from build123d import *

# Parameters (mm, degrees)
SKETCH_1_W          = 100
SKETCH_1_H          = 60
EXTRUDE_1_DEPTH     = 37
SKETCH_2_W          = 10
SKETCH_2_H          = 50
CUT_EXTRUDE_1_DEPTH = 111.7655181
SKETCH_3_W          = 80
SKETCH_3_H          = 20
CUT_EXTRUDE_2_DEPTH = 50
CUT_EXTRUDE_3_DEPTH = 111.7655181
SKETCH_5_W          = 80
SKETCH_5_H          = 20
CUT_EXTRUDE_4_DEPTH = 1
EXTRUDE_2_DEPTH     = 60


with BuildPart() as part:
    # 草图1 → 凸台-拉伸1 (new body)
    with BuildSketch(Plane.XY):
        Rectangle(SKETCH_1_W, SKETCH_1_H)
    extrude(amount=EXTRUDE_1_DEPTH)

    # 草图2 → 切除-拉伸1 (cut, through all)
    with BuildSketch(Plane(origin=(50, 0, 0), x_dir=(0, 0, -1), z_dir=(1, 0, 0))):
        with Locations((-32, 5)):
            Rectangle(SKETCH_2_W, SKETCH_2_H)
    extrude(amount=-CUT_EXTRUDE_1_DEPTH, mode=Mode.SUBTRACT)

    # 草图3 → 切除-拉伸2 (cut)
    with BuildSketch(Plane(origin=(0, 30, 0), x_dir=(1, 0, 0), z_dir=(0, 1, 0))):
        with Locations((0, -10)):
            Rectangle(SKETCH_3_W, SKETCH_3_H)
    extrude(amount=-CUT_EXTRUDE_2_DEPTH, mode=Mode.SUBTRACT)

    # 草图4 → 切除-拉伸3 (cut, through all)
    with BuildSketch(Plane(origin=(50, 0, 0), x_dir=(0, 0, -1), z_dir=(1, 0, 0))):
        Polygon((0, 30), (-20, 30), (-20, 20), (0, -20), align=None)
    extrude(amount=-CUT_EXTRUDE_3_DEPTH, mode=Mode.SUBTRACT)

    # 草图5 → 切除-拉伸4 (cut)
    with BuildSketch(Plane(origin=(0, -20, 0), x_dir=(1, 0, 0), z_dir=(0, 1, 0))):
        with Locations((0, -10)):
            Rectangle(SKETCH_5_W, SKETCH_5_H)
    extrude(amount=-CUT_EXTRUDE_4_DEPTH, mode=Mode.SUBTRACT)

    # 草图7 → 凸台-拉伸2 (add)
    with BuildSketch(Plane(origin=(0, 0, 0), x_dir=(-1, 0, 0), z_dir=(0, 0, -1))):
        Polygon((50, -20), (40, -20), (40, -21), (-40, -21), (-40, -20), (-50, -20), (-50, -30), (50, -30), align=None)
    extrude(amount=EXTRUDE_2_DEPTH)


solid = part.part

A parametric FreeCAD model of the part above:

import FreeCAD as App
import Part
import Sketcher

doc = App.newDocument("Part")
params = doc.addObject("Spreadsheet::Sheet", "Params")
for row, (alias, value) in enumerate([
    ("sketch1_width", "100 mm"),
    ("sketch1_height", "60 mm"),
    ("pad1_length", "37 mm"),
    ("sketch2_width", "50 mm"),
    ("sketch2_height", "10 mm"),
    ("sketch3_width", "80 mm"),
    ("sketch3_height", "20 mm"),
    ("pocket2_length", "50 mm"),
    ("sketch4_width", "10 mm"),
    ("sketch4_width2", "50 mm"),
    ("sketch4_height", "20 mm"),
    ("sketch5_width", "80 mm"),
    ("sketch5_height", "20 mm"),
    ("pocket4_length", "1 mm"),
    ("sketch6_width", "10 mm"),
    ("sketch6_width2", "80 mm"),
    ("sketch6_height", "1 mm"),
    ("pad2_length", "60 mm"),
], start=1):
    params.set(f"A{row}", alias)
    params.set(f"B{row}", "=" + value)
    params.setAlias(f"B{row}", alias)

body = doc.addObject("PartDesign::Body", "Body")

# Sketch on XY plane
sketch1 = body.newObject("Sketcher::SketchObject", "Sketch")
sketch1.AttachmentSupport = (doc.getObject("XY_Plane"), [""])
sketch1.MapMode = "FlatFace"
sketch1.addGeometry(Part.LineSegment(App.Vector(-50, 30, 0), App.Vector(-50, -30, 0)), False)
sketch1.addGeometry(Part.LineSegment(App.Vector(-50, -30, 0), App.Vector(50, -30, 0)), False)
sketch1.addGeometry(Part.LineSegment(App.Vector(50, -30, 0), App.Vector(50, 30, 0)), False)
sketch1.addGeometry(Part.LineSegment(App.Vector(50, 30, 0), App.Vector(-50, 30, 0)), False)
sketch1.addConstraint(Sketcher.Constraint("Coincident", 0, 2, 1, 1))
sketch1.addConstraint(Sketcher.Constraint("Coincident", 1, 2, 2, 1))
sketch1.addConstraint(Sketcher.Constraint("Coincident", 2, 2, 3, 1))
sketch1.addConstraint(Sketcher.Constraint("Coincident", 3, 2, 0, 1))
sketch1.addConstraint(Sketcher.Constraint("Vertical", 0))
sketch1.addConstraint(Sketcher.Constraint("Horizontal", 1))
sketch1.addConstraint(Sketcher.Constraint("Vertical", 2))
sketch1.addConstraint(Sketcher.Constraint("Horizontal", 3))
sketch1.addConstraint(Sketcher.Constraint("Symmetric", 0, 2, 2, 2, -1, 1))
sketch1.addConstraint(Sketcher.Constraint("DistanceX", 1, 1, 1, 2, 100.0))
sketch1.addConstraint(Sketcher.Constraint("DistanceY", 0, 2, 0, 1, 60.0))
sketch1.setExpression("Constraints[9]", "Params.sketch1_width")
sketch1.setExpression("Constraints[10]", "Params.sketch1_height")
pad1 = body.newObject("PartDesign::Pad", "Pad")
pad1.Profile = sketch1
pad1.setExpression("Length", "Params.pad1_length")

# Sketch on YZ plane
sketch2 = body.newObject("Sketcher::SketchObject", "Sketch001")
sketch2.AttachmentSupport = (doc.getObject("YZ_Plane"), [""])
sketch2.MapMode = "FlatFace"
sketch2.AttachmentOffset = App.Placement(App.Vector(0, 0, 50), App.Rotation())
sketch2.addGeometry(Part.LineSegment(App.Vector(30, 37, 0), App.Vector(-20, 37, 0)), False)
sketch2.addGeometry(Part.LineSegment(App.Vector(-20, 37, 0), App.Vector(-20, 27, 0)), False)
sketch2.addGeometry(Part.LineSegment(App.Vector(-20, 27, 0), App.Vector(30, 27, 0)), False)
sketch2.addGeometry(Part.LineSegment(App.Vector(30, 27, 0), App.Vector(30, 37, 0)), False)
sketch2.addConstraint(Sketcher.Constraint("Coincident", 0, 2, 1, 1))
sketch2.addConstraint(Sketcher.Constraint("Coincident", 1, 2, 2, 1))
sketch2.addConstraint(Sketcher.Constraint("Coincident", 2, 2, 3, 1))
sketch2.addConstraint(Sketcher.Constraint("Coincident", 3, 2, 0, 1))
sketch2.addConstraint(Sketcher.Constraint("Horizontal", 0))
sketch2.addConstraint(Sketcher.Constraint("Vertical", 1))
sketch2.addConstraint(Sketcher.Constraint("Horizontal", 2))
sketch2.addConstraint(Sketcher.Constraint("Vertical", 3))
sketch2.addConstraint(Sketcher.Constraint("DistanceX", 0, 2, 0, 1, 50.0))
sketch2.addConstraint(Sketcher.Constraint("DistanceY", 1, 2, 1, 1, 10.0))
sketch2.addConstraint(Sketcher.Constraint("DistanceX", 0, 2, -1, 1, 20.0))
sketch2.addConstraint(Sketcher.Constraint("DistanceY", -1, 1, 0, 2, 37.0))
sketch2.setExpression("Constraints[8]", "Params.sketch2_width")
sketch2.setExpression("Constraints[9]", "Params.sketch2_height")
pocket1 = body.newObject("PartDesign::Pocket", "Pocket")
pocket1.Profile = sketch2
pocket1.Type = "ThroughAll"

# Sketch on XZ plane
sketch3 = body.newObject("Sketcher::SketchObject", "Sketch002")
sketch3.AttachmentSupport = (doc.getObject("XZ_Plane"), [""])
sketch3.MapMode = "FlatFace"
sketch3.AttachmentOffset = App.Placement(App.Vector(0, 0, -30), App.Rotation())
sketch3.addGeometry(Part.LineSegment(App.Vector(-40, 0, 0), App.Vector(-40, 20, 0)), False)
sketch3.addGeometry(Part.LineSegment(App.Vector(-40, 20, 0), App.Vector(40, 20, 0)), False)
sketch3.addGeometry(Part.LineSegment(App.Vector(40, 20, 0), App.Vector(40, 0, 0)), False)
sketch3.addGeometry(Part.LineSegment(App.Vector(40, 0, 0), App.Vector(-40, 0, 0)), False)
sketch3.addConstraint(Sketcher.Constraint("Coincident", 0, 2, 1, 1))
sketch3.addConstraint(Sketcher.Constraint("Coincident", 1, 2, 2, 1))
sketch3.addConstraint(Sketcher.Constraint("Coincident", 2, 2, 3, 1))
sketch3.addConstraint(Sketcher.Constraint("Coincident", 3, 2, 0, 1))
sketch3.addConstraint(Sketcher.Constraint("Vertical", 0))
sketch3.addConstraint(Sketcher.Constraint("Horizontal", 1))
sketch3.addConstraint(Sketcher.Constraint("Vertical", 2))
sketch3.addConstraint(Sketcher.Constraint("Horizontal", 3))
sketch3.addConstraint(Sketcher.Constraint("Symmetric", 2, 2, 3, 2, -1, 1))
sketch3.addConstraint(Sketcher.Constraint("DistanceX", 1, 1, 1, 2, 80.0))
sketch3.addConstraint(Sketcher.Constraint("DistanceY", 0, 1, 0, 2, 20.0))
sketch3.setExpression("Constraints[9]", "Params.sketch3_width")
sketch3.setExpression("Constraints[10]", "Params.sketch3_height")
pocket2 = body.newObject("PartDesign::Pocket", "Pocket001")
pocket2.Profile = sketch3
pocket2.setExpression("Length", "Params.pocket2_length")
pocket2.Reversed = True

# Sketch on YZ plane
sketch4 = body.newObject("Sketcher::SketchObject", "Sketch003")
sketch4.AttachmentSupport = (doc.getObject("YZ_Plane"), [""])
sketch4.MapMode = "FlatFace"
sketch4.AttachmentOffset = App.Placement(App.Vector(0, 0, 50), App.Rotation())
sketch4.addGeometry(Part.LineSegment(App.Vector(30, 0, 0), App.Vector(30, 20, 0)), False)
sketch4.addGeometry(Part.LineSegment(App.Vector(30, 20, 0), App.Vector(20, 20, 0)), False)
sketch4.addGeometry(Part.LineSegment(App.Vector(20, 20, 0), App.Vector(-20, 0, 0)), False)
sketch4.addGeometry(Part.LineSegment(App.Vector(-20, 0, 0), App.Vector(30, 0, 0)), False)
sketch4.addConstraint(Sketcher.Constraint("Coincident", 0, 2, 1, 1))
sketch4.addConstraint(Sketcher.Constraint("Coincident", 1, 2, 2, 1))
sketch4.addConstraint(Sketcher.Constraint("Coincident", 2, 2, 3, 1))
sketch4.addConstraint(Sketcher.Constraint("Coincident", 3, 2, 0, 1))
sketch4.addConstraint(Sketcher.Constraint("Vertical", 0))
sketch4.addConstraint(Sketcher.Constraint("Horizontal", 1))
sketch4.addConstraint(Sketcher.Constraint("Horizontal", 3))
sketch4.addConstraint(Sketcher.Constraint("PointOnObject", 2, 2, -1))
sketch4.addConstraint(Sketcher.Constraint("DistanceX", 1, 2, 1, 1, 10.0))
sketch4.addConstraint(Sketcher.Constraint("DistanceX", 3, 1, 3, 2, 50.0))
sketch4.addConstraint(Sketcher.Constraint("DistanceY", 0, 1, 0, 2, 20.0))
sketch4.addConstraint(Sketcher.Constraint("DistanceX", -1, 1, 0, 2, 30.0))
sketch4.setExpression("Constraints[8]", "Params.sketch4_width")
sketch4.setExpression("Constraints[9]", "Params.sketch4_width2")
sketch4.setExpression("Constraints[10]", "Params.sketch4_height")
pocket3 = body.newObject("PartDesign::Pocket", "Pocket002")
pocket3.Profile = sketch4
pocket3.Type = "ThroughAll"

# Sketch on XZ plane
sketch5 = body.newObject("Sketcher::SketchObject", "Sketch004")
sketch5.AttachmentSupport = (doc.getObject("XZ_Plane"), [""])
sketch5.MapMode = "FlatFace"
sketch5.AttachmentOffset = App.Placement(App.Vector(0, 0, 20), App.Rotation())
sketch5.addGeometry(Part.LineSegment(App.Vector(-40, 0, 0), App.Vector(-40, 20, 0)), False)
sketch5.addGeometry(Part.LineSegment(App.Vector(-40, 20, 0), App.Vector(40, 20, 0)), False)
sketch5.addGeometry(Part.LineSegment(App.Vector(40, 20, 0), App.Vector(40, 0, 0)), False)
sketch5.addGeometry(Part.LineSegment(App.Vector(40, 0, 0), App.Vector(-40, 0, 0)), False)
sketch5.addConstraint(Sketcher.Constraint("Coincident", 0, 2, 1, 1))
sketch5.addConstraint(Sketcher.Constraint("Coincident", 1, 2, 2, 1))
sketch5.addConstraint(Sketcher.Constraint("Coincident", 2, 2, 3, 1))
sketch5.addConstraint(Sketcher.Constraint("Coincident", 3, 2, 0, 1))
sketch5.addConstraint(Sketcher.Constraint("Vertical", 0))
sketch5.addConstraint(Sketcher.Constraint("Horizontal", 1))
sketch5.addConstraint(Sketcher.Constraint("Vertical", 2))
sketch5.addConstraint(Sketcher.Constraint("Horizontal", 3))
sketch5.addConstraint(Sketcher.Constraint("Symmetric", 2, 2, 3, 2, -1, 1))
sketch5.addConstraint(Sketcher.Constraint("DistanceX", 1, 1, 1, 2, 80.0))
sketch5.addConstraint(Sketcher.Constraint("DistanceY", 0, 1, 0, 2, 20.0))
sketch5.setExpression("Constraints[9]", "Params.sketch5_width")
sketch5.setExpression("Constraints[10]", "Params.sketch5_height")
pocket4 = body.newObject("PartDesign::Pocket", "Pocket003")
pocket4.Profile = sketch5
pocket4.setExpression("Length", "Params.pocket4_length")
pocket4.Reversed = True

# Sketch on XY plane
sketch6 = body.newObject("Sketcher::SketchObject", "Sketch005")
sketch6.AttachmentSupport = (doc.getObject("XY_Plane"), [""])
sketch6.MapMode = "FlatFace"
sketch6.addGeometry(Part.LineSegment(App.Vector(-50, -20, 0), App.Vector(-40, -20, 0)), False)
sketch6.addGeometry(Part.LineSegment(App.Vector(-40, -20, 0), App.Vector(-40, -21, 0)), False)
sketch6.addGeometry(Part.LineSegment(App.Vector(-40, -21, 0), App.Vector(40, -21, 0)), False)
sketch6.addGeometry(Part.LineSegment(App.Vector(40, -21, 0), App.Vector(40, -20, 0)), False)
sketch6.addGeometry(Part.LineSegment(App.Vector(40, -20, 0), App.Vector(50, -20, 0)), False)
sketch6.addGeometry(Part.LineSegment(App.Vector(50, -20, 0), App.Vector(50, -30, 0)), False)
sketch6.addGeometry(Part.LineSegment(App.Vector(50, -30, 0), App.Vector(-50, -30, 0)), False)
sketch6.addGeometry(Part.LineSegment(App.Vector(-50, -30, 0), App.Vector(-50, -20, 0)), False)
sketch6.addConstraint(Sketcher.Constraint("Coincident", 0, 2, 1, 1))
sketch6.addConstraint(Sketcher.Constraint("Coincident", 1, 2, 2, 1))
sketch6.addConstraint(Sketcher.Constraint("Coincident", 2, 2, 3, 1))
sketch6.addConstraint(Sketcher.Constraint("Coincident", 3, 2, 4, 1))
sketch6.addConstraint(Sketcher.Constraint("Coincident", 4, 2, 5, 1))
sketch6.addConstraint(Sketcher.Constraint("Coincident", 5, 2, 6, 1))
sketch6.addConstraint(Sketcher.Constraint("Coincident", 6, 2, 7, 1))
sketch6.addConstraint(Sketcher.Constraint("Coincident", 7, 2, 0, 1))
sketch6.addConstraint(Sketcher.Constraint("Horizontal", 0))
sketch6.addConstraint(Sketcher.Constraint("Vertical", 1))
sketch6.addConstraint(Sketcher.Constraint("Horizontal", 2))
sketch6.addConstraint(Sketcher.Constraint("Vertical", 3))
sketch6.addConstraint(Sketcher.Constraint("Horizontal", 4))
sketch6.addConstraint(Sketcher.Constraint("Vertical", 5))
sketch6.addConstraint(Sketcher.Constraint("Horizontal", 6))
sketch6.addConstraint(Sketcher.Constraint("Vertical", 7))
sketch6.addConstraint(Sketcher.Constraint("Symmetric", 0, 2, 3, 2, -2))
sketch6.addConstraint(Sketcher.Constraint("Equal", 0, 4))
sketch6.addConstraint(Sketcher.Constraint("Equal", 4, 5))
sketch6.addConstraint(Sketcher.Constraint("DistanceX", 0, 1, 0, 2, 10.0))
sketch6.addConstraint(Sketcher.Constraint("DistanceX", 2, 1, 2, 2, 80.0))
sketch6.addConstraint(Sketcher.Constraint("DistanceY", 1, 2, 1, 1, 1.0))
sketch6.addConstraint(Sketcher.Constraint("DistanceY", 0, 2, -1, 1, 20.0))
sketch6.setExpression("Constraints[19]", "Params.sketch6_width")
sketch6.setExpression("Constraints[20]", "Params.sketch6_width2")
sketch6.setExpression("Constraints[21]", "Params.sketch6_height")
pad2 = body.newObject("PartDesign::Pad", "Pad001")
pad2.Profile = sketch6
pad2.setExpression("Length", "Params.pad2_length")
pad2.Reversed = True

doc.recompute()
